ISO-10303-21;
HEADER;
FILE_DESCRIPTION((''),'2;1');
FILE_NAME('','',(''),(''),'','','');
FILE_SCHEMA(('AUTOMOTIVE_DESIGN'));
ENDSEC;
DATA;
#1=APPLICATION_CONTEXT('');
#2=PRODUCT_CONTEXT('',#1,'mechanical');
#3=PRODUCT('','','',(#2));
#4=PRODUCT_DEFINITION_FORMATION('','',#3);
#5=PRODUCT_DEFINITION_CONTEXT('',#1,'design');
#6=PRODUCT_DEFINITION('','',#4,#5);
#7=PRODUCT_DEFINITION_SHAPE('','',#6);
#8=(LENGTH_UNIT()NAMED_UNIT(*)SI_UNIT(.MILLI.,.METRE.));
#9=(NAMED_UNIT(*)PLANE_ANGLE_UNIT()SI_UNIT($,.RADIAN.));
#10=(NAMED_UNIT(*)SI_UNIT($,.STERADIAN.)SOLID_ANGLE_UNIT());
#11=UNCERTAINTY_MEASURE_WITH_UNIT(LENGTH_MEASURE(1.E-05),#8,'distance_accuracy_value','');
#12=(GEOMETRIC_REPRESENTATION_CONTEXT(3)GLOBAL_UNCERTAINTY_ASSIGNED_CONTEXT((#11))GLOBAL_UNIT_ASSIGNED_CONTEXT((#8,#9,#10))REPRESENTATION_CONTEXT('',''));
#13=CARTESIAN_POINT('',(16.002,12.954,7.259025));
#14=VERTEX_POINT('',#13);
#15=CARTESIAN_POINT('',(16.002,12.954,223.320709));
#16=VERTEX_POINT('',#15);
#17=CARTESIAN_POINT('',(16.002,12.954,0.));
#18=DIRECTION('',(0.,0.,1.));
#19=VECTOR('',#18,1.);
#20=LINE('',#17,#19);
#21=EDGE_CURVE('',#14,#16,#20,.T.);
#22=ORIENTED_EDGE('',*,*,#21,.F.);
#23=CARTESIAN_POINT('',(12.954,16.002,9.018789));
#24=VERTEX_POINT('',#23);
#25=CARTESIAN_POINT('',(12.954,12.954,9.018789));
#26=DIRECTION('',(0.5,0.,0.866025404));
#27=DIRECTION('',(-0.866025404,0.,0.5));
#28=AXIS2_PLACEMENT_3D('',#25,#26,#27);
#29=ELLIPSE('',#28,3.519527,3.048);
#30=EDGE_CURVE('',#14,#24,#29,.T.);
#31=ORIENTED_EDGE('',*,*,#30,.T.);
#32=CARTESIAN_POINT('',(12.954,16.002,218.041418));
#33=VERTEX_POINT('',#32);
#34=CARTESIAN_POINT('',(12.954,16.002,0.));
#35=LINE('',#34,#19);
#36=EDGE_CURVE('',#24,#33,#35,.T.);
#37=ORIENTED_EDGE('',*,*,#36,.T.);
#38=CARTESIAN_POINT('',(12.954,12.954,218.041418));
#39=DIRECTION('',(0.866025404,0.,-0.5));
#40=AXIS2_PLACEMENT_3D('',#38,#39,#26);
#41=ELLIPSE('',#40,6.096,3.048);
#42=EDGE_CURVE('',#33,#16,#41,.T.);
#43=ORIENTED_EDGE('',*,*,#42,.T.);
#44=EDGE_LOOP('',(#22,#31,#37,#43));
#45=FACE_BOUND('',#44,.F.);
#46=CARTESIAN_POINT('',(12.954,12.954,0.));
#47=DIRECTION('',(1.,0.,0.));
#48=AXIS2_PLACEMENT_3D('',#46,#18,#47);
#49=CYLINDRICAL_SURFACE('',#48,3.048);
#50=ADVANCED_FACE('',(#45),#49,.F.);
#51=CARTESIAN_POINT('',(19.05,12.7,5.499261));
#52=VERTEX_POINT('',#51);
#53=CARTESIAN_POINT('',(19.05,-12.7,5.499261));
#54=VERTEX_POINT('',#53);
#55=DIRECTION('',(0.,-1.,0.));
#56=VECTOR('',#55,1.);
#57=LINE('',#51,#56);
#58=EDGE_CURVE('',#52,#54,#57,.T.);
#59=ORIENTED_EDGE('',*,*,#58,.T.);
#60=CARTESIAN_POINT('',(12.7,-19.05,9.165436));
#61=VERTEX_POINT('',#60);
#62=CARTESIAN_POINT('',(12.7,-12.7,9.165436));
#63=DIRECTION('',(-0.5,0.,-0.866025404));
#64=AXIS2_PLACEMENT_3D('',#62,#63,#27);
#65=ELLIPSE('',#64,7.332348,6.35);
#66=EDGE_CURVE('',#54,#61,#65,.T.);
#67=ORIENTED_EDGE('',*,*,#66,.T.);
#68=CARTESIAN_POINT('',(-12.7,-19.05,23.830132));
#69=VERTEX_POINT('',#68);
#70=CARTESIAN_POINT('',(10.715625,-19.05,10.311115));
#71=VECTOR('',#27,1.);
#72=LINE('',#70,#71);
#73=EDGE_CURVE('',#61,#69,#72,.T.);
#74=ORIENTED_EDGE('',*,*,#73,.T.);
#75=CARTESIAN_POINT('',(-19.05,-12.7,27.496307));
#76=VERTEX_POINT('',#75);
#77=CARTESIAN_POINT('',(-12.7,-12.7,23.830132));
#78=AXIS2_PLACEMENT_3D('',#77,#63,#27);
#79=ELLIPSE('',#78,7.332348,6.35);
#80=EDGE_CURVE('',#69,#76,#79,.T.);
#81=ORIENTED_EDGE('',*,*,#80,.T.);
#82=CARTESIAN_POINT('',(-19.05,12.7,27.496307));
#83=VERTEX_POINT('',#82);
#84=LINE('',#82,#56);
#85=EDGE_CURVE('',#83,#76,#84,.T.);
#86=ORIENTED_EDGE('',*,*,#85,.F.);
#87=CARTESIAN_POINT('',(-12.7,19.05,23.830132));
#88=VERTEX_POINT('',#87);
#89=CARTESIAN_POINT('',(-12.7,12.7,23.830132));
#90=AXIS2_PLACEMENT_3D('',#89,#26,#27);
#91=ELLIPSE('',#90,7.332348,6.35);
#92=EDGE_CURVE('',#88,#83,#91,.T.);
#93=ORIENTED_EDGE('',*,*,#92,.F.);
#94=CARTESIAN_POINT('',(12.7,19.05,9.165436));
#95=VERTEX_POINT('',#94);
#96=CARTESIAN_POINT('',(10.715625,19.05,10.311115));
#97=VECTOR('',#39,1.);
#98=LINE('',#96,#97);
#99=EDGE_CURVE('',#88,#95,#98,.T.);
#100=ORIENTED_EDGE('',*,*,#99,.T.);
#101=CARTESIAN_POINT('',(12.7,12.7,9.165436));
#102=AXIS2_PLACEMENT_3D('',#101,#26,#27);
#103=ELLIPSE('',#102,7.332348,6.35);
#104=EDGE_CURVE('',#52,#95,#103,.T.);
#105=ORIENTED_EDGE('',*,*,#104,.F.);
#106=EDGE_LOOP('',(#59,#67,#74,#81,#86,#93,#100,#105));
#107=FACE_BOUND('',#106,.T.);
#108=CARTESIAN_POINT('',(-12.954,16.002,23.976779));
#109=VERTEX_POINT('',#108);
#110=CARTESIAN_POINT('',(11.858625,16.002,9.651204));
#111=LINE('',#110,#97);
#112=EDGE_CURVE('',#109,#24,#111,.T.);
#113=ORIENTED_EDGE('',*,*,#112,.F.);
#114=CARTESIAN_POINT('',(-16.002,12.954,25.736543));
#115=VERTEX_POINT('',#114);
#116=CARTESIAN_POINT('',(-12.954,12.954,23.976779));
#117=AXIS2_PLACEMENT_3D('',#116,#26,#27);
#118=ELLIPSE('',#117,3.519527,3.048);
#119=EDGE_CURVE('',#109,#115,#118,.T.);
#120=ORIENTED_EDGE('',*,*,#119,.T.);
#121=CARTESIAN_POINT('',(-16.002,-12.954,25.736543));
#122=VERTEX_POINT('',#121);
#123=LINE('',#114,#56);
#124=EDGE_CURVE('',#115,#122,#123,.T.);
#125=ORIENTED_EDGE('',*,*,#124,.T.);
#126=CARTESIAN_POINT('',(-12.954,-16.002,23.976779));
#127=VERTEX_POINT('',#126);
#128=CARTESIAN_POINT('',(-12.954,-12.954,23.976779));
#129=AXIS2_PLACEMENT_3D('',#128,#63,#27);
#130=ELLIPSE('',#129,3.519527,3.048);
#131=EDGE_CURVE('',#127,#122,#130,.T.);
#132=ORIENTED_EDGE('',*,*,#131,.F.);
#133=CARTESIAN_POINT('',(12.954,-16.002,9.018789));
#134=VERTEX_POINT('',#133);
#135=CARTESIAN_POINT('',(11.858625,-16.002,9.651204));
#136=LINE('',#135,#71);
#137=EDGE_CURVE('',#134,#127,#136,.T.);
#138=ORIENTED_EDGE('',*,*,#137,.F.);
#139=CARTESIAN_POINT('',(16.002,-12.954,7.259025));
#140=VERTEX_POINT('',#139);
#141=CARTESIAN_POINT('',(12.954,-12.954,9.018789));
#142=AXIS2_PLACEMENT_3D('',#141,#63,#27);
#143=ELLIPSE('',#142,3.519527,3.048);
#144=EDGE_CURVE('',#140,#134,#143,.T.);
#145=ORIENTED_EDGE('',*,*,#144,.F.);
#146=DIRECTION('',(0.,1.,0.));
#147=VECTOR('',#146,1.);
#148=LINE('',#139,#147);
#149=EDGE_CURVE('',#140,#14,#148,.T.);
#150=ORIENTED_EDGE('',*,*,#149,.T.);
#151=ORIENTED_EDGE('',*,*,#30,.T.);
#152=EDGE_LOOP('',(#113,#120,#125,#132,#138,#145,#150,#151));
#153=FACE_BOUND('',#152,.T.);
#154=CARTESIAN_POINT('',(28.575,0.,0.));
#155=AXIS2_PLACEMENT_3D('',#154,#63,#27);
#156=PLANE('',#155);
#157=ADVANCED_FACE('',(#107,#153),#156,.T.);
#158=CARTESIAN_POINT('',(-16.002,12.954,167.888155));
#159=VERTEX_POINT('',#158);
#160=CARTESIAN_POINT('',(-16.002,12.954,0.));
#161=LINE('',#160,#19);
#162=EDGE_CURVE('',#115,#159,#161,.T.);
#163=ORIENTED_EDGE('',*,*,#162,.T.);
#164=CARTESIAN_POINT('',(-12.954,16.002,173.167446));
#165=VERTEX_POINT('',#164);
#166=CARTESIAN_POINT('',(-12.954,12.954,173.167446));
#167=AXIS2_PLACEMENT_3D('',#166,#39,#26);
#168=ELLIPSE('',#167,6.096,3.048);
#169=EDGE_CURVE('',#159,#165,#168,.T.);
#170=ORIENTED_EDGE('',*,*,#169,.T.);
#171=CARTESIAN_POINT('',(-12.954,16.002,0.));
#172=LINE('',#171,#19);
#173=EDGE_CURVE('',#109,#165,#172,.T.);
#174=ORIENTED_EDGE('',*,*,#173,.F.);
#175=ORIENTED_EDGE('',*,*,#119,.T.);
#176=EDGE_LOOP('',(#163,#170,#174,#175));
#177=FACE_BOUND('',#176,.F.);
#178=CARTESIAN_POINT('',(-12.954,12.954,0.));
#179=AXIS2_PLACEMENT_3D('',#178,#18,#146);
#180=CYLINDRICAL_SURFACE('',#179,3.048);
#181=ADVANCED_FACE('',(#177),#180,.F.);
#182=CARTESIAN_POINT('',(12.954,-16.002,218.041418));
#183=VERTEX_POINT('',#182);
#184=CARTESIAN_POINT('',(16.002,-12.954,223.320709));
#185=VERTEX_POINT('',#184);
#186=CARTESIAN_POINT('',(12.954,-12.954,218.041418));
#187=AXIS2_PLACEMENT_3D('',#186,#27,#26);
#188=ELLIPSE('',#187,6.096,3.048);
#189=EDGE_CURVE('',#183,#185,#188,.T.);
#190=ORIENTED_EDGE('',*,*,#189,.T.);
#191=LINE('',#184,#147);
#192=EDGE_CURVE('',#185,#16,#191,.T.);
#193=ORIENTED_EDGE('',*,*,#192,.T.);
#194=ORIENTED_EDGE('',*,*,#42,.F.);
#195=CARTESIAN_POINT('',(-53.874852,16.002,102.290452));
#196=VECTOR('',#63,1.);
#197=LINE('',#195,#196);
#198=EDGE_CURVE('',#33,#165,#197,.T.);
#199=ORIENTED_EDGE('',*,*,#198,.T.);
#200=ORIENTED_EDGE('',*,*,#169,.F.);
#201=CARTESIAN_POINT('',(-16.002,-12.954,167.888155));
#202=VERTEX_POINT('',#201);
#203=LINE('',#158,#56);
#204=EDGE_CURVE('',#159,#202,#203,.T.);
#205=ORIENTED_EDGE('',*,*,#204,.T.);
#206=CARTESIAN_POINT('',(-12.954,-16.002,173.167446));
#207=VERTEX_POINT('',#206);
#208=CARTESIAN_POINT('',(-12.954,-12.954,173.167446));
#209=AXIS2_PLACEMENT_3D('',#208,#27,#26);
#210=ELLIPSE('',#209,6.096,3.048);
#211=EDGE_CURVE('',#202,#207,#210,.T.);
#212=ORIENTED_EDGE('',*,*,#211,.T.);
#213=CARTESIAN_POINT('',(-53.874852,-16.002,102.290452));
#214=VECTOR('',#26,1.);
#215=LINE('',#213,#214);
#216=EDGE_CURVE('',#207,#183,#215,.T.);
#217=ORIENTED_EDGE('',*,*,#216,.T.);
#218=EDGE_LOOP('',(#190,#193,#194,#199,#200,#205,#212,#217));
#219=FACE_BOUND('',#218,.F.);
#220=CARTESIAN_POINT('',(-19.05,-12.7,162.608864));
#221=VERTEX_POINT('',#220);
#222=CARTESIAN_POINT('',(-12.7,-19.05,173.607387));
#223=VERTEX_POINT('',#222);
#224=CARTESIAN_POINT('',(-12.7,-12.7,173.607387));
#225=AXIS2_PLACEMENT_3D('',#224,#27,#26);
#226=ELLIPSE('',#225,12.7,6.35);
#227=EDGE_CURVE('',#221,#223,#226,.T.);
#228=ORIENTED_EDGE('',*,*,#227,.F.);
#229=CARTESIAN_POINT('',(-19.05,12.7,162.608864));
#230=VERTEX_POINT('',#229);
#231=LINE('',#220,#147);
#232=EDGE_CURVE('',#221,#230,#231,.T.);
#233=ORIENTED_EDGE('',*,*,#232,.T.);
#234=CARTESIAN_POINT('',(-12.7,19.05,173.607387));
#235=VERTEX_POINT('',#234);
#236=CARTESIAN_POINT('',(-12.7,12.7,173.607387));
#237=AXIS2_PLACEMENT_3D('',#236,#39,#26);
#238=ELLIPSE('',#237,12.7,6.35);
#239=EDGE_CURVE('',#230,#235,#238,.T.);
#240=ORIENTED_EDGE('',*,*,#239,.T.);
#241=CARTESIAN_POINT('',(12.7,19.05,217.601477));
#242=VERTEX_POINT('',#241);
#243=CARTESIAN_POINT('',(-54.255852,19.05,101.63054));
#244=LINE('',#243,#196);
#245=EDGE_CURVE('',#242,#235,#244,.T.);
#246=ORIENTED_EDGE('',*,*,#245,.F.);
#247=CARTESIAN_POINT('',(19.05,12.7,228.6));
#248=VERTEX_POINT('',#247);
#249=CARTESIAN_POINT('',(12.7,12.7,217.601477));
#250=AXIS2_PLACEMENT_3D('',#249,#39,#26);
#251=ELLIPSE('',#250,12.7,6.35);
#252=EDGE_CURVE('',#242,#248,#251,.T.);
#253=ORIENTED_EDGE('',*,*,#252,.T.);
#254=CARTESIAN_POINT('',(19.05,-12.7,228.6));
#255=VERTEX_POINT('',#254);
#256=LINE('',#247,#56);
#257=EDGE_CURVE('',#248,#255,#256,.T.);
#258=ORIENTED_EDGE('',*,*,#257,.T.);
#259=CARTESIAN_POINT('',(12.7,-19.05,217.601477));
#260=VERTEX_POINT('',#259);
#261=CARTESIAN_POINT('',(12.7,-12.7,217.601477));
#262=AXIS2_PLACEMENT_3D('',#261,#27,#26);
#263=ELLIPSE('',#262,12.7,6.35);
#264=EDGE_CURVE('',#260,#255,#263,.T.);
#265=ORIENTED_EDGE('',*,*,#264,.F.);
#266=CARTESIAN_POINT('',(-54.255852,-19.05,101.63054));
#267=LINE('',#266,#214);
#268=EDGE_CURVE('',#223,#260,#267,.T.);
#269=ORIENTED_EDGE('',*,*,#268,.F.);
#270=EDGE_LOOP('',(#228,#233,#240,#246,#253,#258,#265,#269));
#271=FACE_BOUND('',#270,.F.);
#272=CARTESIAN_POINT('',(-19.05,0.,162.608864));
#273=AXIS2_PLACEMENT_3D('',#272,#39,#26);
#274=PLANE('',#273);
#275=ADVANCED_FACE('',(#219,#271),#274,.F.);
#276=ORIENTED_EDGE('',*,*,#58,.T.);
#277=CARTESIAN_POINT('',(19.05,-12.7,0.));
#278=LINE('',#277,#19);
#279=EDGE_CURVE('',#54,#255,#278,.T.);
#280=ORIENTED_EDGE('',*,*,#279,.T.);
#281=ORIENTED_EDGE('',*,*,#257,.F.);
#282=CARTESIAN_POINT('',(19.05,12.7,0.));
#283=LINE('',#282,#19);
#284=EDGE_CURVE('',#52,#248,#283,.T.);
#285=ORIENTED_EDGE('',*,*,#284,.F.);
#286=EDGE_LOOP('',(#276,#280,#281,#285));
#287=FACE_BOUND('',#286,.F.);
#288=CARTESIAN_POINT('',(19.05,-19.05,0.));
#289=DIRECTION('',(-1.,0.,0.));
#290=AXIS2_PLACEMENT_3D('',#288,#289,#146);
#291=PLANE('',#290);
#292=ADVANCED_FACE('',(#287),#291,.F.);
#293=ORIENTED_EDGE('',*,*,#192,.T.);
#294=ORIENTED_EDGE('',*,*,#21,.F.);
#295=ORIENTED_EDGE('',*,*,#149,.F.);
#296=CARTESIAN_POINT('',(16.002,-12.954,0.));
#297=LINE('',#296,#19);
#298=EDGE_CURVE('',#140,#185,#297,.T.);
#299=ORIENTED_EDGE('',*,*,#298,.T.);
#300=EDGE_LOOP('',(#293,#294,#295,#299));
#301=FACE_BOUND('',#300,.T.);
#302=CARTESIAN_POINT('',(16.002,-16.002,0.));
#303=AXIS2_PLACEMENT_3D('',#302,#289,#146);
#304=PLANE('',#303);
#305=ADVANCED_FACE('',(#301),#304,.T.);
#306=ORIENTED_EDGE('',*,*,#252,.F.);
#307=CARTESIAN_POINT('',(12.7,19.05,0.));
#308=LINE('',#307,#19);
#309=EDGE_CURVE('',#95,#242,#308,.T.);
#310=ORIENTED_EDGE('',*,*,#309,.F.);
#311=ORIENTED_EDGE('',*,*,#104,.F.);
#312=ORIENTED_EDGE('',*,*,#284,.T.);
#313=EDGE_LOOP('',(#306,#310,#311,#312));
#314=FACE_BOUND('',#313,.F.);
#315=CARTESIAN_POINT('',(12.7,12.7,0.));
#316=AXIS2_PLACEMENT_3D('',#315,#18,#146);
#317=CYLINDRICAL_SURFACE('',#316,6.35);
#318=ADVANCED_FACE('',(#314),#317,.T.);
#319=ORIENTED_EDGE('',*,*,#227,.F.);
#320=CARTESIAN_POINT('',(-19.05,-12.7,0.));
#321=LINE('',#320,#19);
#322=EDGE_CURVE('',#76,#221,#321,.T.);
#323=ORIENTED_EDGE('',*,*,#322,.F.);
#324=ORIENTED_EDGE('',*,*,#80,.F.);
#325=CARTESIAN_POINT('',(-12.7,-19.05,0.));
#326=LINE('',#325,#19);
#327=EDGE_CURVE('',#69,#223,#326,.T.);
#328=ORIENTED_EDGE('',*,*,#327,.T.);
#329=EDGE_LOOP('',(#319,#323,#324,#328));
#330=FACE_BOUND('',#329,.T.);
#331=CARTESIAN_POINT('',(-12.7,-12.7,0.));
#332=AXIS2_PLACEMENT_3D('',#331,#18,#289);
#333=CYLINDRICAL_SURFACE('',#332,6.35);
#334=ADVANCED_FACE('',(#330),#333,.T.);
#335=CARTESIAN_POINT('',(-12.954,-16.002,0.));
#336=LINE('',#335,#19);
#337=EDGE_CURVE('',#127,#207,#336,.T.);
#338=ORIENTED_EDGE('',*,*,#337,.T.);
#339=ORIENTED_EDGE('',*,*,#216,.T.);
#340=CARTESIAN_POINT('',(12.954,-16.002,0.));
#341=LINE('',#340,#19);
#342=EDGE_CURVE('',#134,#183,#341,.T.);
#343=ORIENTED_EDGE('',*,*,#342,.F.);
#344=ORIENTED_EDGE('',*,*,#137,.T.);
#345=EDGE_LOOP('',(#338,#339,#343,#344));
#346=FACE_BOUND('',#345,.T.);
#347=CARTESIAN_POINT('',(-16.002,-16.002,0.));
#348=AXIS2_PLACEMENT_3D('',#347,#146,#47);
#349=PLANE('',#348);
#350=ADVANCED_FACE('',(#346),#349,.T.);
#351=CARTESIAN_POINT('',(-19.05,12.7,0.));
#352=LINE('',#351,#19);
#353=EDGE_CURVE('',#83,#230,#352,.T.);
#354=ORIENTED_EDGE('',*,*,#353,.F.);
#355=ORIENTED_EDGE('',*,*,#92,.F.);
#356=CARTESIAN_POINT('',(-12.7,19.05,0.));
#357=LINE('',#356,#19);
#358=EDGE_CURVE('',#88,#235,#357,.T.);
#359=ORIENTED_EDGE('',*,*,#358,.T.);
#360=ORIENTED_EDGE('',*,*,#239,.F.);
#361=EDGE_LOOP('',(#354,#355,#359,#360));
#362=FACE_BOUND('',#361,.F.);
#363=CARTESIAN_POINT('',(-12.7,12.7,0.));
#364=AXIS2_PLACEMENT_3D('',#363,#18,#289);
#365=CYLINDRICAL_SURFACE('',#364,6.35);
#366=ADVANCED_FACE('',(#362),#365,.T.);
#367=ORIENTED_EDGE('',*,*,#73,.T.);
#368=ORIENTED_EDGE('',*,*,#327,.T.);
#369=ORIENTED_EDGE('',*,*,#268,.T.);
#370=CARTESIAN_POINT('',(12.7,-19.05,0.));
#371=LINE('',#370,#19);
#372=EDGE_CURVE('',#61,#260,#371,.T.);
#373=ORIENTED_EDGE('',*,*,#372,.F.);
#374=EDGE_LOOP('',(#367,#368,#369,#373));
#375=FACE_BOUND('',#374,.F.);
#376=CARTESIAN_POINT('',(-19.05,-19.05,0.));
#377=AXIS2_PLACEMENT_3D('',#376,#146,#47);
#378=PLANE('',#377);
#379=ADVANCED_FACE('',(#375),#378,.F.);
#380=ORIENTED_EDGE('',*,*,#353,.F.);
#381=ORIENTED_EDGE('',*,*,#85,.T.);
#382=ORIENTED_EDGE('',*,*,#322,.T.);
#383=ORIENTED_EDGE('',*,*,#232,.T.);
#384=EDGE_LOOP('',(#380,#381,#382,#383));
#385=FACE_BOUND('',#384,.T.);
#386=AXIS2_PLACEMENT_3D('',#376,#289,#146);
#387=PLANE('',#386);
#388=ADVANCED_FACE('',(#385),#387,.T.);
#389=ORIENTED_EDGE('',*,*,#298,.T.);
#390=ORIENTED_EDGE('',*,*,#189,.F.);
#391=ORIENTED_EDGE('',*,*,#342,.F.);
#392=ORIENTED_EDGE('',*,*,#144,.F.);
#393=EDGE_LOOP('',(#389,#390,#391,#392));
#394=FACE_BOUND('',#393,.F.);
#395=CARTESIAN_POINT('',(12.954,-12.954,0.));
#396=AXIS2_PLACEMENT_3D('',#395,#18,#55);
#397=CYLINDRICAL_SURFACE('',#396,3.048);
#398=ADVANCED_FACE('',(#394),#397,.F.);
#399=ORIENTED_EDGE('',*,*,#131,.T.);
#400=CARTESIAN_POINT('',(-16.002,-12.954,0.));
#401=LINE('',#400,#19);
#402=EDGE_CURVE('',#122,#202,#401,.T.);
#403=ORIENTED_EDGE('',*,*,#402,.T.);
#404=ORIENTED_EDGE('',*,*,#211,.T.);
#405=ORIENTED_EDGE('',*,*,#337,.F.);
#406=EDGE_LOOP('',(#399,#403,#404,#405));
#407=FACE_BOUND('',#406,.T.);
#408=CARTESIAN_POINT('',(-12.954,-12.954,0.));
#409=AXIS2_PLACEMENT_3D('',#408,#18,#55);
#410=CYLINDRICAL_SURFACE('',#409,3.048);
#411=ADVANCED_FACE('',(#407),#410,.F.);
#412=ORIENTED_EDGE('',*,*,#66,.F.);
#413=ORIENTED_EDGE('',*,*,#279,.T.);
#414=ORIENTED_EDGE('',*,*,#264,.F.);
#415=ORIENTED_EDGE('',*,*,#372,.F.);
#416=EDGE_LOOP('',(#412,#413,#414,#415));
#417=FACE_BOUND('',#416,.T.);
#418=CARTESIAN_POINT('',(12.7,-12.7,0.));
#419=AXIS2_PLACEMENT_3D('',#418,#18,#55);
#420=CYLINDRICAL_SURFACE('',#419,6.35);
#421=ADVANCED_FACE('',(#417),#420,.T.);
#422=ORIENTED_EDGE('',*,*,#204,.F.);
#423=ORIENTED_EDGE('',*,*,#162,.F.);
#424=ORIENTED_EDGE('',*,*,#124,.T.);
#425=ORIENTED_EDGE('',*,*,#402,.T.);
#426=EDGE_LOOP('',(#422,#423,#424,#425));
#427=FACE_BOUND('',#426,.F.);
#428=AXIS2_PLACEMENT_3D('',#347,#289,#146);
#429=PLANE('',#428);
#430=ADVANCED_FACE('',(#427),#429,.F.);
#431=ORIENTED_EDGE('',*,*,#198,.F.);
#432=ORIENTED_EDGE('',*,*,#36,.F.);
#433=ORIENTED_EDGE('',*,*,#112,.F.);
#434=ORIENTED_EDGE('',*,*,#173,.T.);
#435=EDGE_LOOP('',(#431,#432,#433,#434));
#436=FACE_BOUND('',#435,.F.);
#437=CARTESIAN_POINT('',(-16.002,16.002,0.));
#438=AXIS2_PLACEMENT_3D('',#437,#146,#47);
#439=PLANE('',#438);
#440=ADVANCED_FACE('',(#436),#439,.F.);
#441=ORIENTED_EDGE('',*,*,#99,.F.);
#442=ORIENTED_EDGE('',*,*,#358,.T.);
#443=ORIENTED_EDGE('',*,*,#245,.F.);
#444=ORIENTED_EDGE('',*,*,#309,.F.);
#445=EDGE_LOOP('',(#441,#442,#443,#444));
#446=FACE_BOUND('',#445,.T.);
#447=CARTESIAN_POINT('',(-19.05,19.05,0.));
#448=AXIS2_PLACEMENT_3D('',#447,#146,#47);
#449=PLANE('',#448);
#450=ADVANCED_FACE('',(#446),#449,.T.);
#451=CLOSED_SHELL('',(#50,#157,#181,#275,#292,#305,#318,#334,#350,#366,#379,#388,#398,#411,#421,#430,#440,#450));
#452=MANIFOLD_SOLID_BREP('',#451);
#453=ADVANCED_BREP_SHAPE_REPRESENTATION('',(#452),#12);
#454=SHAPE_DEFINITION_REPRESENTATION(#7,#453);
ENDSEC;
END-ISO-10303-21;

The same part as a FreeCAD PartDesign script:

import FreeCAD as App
import Part
import Sketcher

V = App.Vector
Q = App.Units.Quantity


def edges_at(feature, points):
    """Names of the edges that pass closest to the given points."""
    edges = feature.Shape.Edges
    near = lambda p: min(range(len(edges)), key=lambda i: edges[i].distToShape(Part.Vertex(*p))[0])
    return sorted({f"Edge{near(p) + 1}" for p in points})


def add_polygon(sketch, points):
    """Adds a closed chain of lines whose ends are joined by coincident constraints."""
    first, n = sketch.GeometryCount, len(points)
    for a, b in zip(points, points[1:] + points[:1]):
        sketch.addGeometry(Part.LineSegment(App.Vector(*a, 0), App.Vector(*b, 0)), False)
    for i in range(n):
        sketch.addConstraint(Sketcher.Constraint("Coincident", first + i, 2, first + (i + 1) % n, 1))

doc = App.newDocument("Part")
body = doc.addObject("PartDesign::Body", "Body")

# Sketch on XY plane
sketch1 = body.newObject("Sketcher::SketchObject", "Sketch")
sketch1.AttachmentSupport = (doc.getObject("XY_Plane"), [""])
sketch1.MapMode = "FlatFace"
add_polygon(sketch1, [(-19.05, 19.05), (-19.05, -19.05), (19.05, -19.05), (19.05, 19.05)])  # lines 0-3
add_polygon(sketch1, [(16.002, -16.002), (-16.002, -16.002), (-16.002, 16.002), (16.002, 16.002)])  # lines 4-7
sketch1.addConstraint([
    Sketcher.Constraint("Vertical", 0),
    Sketcher.Constraint("Horizontal", 1),
    Sketcher.Constraint("Vertical", 2),
    Sketcher.Constraint("Horizontal", 3),
    Sketcher.Constraint("Horizontal", 4),
    Sketcher.Constraint("Vertical", 5),
    Sketcher.Constraint("Horizontal", 6),
    Sketcher.Constraint("Vertical", 7),
    Sketcher.Constraint("Symmetric", 0, 2, 2, 2, -1, 1),
    Sketcher.Constraint("Symmetric", 4, 2, 6, 2, -1, 1),
    Sketcher.Constraint("Equal", 3, 0),
    Sketcher.Constraint("Equal", 6, 5),
    Sketcher.Constraint("DistanceX", 1, 1, 1, 2, Q("1.5 in")),
    Sketcher.Constraint("DistanceX", 4, 2, 4, 1, Q("1.26 in")),
])
pad1 = body.newObject("PartDesign::Pad", "Pad")
pad1.Profile = sketch1
pad1.Length = Q("9 in")
doc.recompute()

fillet = body.newObject("PartDesign::Fillet", "Fillet")
fillet.Base = (pad1, edges_at(pad1, [
    (16.002, 16.002, 114.3),
    (-16.002, 16.002, 114.3),
    (-16.002, -16.002, 114.3),
    (16.002, -16.002, 114.3),
]))
fillet.Radius = Q("0.12 in")
doc.recompute()

fillet2 = body.newObject("PartDesign::Fillet", "Fillet001")
fillet2.Base = (fillet, edges_at(fillet, [
    (-19.05, 19.05, 114.3),
    (-19.05, -19.05, 114.3),
    (19.05, -19.05, 114.3),
    (19.05, 19.05, 114.3),
]))
fillet2.Radius = Q("0.25 in")

# Sketch on XZ plane
sketch2 = body.newObject("Sketcher::SketchObject", "Sketch001")
sketch2.AttachmentSupport = (doc.getObject("XZ_Plane"), [""])
sketch2.MapMode = "FlatFace"
add_polygon(sketch2, [(-19.05, 162.608864), (19.05, 228.6), (-19.05, 228.6)])  # lines 0-2
sketch2.addConstraint([
    Sketcher.Constraint("Horizontal", 1),
    Sketcher.Constraint("Vertical", 2),
    Sketcher.Constraint("Distance", 0, Q("3 in")),
    Sketcher.Constraint("DistanceX", 1, 2, 1, 1, Q("1.5 in")),
    Sketcher.Constraint("DistanceY", -1, 1, 0, 2, Q("9 in")),
    Sketcher.Constraint("DistanceX", -1, 1, 0, 2, Q("0.75 in")),
])
pocket1 = body.newObject("PartDesign::Pocket", "Pocket")
pocket1.Profile = sketch2
pocket1.Type = "ThroughAll"
pocket1.Midplane = True

# Sketch on XZ plane
sketch3 = body.newObject("Sketcher::SketchObject", "Sketch002")
sketch3.AttachmentSupport = (doc.getObject("XZ_Plane"), [""])
sketch3.MapMode = "FlatFace"
add_polygon(sketch3, [(-19.05, 27.496307), (-19.05, 0), (28.575, 0)])  # lines 0-2
sketch3.addConstraint([
    Sketcher.Constraint("Vertical", 0),
    Sketcher.Constraint("Horizontal", 1),
    Sketcher.Constraint("PointOnObject", 0, 2, -1),
    Sketcher.Constraint("Angle", 2, Q("150 deg")),
    Sketcher.Constraint("DistanceX", 1, 1, 1, 2, Q("1.875 in")),
    Sketcher.Constraint("DistanceX", 0, 2, -1, 1, Q("0.75 in")),
])
pocket2 = body.newObject("PartDesign::Pocket", "Pocket001")
pocket2.Profile = sketch3
pocket2.Type = "ThroughAll"
pocket2.Midplane = True

doc.recompute()
